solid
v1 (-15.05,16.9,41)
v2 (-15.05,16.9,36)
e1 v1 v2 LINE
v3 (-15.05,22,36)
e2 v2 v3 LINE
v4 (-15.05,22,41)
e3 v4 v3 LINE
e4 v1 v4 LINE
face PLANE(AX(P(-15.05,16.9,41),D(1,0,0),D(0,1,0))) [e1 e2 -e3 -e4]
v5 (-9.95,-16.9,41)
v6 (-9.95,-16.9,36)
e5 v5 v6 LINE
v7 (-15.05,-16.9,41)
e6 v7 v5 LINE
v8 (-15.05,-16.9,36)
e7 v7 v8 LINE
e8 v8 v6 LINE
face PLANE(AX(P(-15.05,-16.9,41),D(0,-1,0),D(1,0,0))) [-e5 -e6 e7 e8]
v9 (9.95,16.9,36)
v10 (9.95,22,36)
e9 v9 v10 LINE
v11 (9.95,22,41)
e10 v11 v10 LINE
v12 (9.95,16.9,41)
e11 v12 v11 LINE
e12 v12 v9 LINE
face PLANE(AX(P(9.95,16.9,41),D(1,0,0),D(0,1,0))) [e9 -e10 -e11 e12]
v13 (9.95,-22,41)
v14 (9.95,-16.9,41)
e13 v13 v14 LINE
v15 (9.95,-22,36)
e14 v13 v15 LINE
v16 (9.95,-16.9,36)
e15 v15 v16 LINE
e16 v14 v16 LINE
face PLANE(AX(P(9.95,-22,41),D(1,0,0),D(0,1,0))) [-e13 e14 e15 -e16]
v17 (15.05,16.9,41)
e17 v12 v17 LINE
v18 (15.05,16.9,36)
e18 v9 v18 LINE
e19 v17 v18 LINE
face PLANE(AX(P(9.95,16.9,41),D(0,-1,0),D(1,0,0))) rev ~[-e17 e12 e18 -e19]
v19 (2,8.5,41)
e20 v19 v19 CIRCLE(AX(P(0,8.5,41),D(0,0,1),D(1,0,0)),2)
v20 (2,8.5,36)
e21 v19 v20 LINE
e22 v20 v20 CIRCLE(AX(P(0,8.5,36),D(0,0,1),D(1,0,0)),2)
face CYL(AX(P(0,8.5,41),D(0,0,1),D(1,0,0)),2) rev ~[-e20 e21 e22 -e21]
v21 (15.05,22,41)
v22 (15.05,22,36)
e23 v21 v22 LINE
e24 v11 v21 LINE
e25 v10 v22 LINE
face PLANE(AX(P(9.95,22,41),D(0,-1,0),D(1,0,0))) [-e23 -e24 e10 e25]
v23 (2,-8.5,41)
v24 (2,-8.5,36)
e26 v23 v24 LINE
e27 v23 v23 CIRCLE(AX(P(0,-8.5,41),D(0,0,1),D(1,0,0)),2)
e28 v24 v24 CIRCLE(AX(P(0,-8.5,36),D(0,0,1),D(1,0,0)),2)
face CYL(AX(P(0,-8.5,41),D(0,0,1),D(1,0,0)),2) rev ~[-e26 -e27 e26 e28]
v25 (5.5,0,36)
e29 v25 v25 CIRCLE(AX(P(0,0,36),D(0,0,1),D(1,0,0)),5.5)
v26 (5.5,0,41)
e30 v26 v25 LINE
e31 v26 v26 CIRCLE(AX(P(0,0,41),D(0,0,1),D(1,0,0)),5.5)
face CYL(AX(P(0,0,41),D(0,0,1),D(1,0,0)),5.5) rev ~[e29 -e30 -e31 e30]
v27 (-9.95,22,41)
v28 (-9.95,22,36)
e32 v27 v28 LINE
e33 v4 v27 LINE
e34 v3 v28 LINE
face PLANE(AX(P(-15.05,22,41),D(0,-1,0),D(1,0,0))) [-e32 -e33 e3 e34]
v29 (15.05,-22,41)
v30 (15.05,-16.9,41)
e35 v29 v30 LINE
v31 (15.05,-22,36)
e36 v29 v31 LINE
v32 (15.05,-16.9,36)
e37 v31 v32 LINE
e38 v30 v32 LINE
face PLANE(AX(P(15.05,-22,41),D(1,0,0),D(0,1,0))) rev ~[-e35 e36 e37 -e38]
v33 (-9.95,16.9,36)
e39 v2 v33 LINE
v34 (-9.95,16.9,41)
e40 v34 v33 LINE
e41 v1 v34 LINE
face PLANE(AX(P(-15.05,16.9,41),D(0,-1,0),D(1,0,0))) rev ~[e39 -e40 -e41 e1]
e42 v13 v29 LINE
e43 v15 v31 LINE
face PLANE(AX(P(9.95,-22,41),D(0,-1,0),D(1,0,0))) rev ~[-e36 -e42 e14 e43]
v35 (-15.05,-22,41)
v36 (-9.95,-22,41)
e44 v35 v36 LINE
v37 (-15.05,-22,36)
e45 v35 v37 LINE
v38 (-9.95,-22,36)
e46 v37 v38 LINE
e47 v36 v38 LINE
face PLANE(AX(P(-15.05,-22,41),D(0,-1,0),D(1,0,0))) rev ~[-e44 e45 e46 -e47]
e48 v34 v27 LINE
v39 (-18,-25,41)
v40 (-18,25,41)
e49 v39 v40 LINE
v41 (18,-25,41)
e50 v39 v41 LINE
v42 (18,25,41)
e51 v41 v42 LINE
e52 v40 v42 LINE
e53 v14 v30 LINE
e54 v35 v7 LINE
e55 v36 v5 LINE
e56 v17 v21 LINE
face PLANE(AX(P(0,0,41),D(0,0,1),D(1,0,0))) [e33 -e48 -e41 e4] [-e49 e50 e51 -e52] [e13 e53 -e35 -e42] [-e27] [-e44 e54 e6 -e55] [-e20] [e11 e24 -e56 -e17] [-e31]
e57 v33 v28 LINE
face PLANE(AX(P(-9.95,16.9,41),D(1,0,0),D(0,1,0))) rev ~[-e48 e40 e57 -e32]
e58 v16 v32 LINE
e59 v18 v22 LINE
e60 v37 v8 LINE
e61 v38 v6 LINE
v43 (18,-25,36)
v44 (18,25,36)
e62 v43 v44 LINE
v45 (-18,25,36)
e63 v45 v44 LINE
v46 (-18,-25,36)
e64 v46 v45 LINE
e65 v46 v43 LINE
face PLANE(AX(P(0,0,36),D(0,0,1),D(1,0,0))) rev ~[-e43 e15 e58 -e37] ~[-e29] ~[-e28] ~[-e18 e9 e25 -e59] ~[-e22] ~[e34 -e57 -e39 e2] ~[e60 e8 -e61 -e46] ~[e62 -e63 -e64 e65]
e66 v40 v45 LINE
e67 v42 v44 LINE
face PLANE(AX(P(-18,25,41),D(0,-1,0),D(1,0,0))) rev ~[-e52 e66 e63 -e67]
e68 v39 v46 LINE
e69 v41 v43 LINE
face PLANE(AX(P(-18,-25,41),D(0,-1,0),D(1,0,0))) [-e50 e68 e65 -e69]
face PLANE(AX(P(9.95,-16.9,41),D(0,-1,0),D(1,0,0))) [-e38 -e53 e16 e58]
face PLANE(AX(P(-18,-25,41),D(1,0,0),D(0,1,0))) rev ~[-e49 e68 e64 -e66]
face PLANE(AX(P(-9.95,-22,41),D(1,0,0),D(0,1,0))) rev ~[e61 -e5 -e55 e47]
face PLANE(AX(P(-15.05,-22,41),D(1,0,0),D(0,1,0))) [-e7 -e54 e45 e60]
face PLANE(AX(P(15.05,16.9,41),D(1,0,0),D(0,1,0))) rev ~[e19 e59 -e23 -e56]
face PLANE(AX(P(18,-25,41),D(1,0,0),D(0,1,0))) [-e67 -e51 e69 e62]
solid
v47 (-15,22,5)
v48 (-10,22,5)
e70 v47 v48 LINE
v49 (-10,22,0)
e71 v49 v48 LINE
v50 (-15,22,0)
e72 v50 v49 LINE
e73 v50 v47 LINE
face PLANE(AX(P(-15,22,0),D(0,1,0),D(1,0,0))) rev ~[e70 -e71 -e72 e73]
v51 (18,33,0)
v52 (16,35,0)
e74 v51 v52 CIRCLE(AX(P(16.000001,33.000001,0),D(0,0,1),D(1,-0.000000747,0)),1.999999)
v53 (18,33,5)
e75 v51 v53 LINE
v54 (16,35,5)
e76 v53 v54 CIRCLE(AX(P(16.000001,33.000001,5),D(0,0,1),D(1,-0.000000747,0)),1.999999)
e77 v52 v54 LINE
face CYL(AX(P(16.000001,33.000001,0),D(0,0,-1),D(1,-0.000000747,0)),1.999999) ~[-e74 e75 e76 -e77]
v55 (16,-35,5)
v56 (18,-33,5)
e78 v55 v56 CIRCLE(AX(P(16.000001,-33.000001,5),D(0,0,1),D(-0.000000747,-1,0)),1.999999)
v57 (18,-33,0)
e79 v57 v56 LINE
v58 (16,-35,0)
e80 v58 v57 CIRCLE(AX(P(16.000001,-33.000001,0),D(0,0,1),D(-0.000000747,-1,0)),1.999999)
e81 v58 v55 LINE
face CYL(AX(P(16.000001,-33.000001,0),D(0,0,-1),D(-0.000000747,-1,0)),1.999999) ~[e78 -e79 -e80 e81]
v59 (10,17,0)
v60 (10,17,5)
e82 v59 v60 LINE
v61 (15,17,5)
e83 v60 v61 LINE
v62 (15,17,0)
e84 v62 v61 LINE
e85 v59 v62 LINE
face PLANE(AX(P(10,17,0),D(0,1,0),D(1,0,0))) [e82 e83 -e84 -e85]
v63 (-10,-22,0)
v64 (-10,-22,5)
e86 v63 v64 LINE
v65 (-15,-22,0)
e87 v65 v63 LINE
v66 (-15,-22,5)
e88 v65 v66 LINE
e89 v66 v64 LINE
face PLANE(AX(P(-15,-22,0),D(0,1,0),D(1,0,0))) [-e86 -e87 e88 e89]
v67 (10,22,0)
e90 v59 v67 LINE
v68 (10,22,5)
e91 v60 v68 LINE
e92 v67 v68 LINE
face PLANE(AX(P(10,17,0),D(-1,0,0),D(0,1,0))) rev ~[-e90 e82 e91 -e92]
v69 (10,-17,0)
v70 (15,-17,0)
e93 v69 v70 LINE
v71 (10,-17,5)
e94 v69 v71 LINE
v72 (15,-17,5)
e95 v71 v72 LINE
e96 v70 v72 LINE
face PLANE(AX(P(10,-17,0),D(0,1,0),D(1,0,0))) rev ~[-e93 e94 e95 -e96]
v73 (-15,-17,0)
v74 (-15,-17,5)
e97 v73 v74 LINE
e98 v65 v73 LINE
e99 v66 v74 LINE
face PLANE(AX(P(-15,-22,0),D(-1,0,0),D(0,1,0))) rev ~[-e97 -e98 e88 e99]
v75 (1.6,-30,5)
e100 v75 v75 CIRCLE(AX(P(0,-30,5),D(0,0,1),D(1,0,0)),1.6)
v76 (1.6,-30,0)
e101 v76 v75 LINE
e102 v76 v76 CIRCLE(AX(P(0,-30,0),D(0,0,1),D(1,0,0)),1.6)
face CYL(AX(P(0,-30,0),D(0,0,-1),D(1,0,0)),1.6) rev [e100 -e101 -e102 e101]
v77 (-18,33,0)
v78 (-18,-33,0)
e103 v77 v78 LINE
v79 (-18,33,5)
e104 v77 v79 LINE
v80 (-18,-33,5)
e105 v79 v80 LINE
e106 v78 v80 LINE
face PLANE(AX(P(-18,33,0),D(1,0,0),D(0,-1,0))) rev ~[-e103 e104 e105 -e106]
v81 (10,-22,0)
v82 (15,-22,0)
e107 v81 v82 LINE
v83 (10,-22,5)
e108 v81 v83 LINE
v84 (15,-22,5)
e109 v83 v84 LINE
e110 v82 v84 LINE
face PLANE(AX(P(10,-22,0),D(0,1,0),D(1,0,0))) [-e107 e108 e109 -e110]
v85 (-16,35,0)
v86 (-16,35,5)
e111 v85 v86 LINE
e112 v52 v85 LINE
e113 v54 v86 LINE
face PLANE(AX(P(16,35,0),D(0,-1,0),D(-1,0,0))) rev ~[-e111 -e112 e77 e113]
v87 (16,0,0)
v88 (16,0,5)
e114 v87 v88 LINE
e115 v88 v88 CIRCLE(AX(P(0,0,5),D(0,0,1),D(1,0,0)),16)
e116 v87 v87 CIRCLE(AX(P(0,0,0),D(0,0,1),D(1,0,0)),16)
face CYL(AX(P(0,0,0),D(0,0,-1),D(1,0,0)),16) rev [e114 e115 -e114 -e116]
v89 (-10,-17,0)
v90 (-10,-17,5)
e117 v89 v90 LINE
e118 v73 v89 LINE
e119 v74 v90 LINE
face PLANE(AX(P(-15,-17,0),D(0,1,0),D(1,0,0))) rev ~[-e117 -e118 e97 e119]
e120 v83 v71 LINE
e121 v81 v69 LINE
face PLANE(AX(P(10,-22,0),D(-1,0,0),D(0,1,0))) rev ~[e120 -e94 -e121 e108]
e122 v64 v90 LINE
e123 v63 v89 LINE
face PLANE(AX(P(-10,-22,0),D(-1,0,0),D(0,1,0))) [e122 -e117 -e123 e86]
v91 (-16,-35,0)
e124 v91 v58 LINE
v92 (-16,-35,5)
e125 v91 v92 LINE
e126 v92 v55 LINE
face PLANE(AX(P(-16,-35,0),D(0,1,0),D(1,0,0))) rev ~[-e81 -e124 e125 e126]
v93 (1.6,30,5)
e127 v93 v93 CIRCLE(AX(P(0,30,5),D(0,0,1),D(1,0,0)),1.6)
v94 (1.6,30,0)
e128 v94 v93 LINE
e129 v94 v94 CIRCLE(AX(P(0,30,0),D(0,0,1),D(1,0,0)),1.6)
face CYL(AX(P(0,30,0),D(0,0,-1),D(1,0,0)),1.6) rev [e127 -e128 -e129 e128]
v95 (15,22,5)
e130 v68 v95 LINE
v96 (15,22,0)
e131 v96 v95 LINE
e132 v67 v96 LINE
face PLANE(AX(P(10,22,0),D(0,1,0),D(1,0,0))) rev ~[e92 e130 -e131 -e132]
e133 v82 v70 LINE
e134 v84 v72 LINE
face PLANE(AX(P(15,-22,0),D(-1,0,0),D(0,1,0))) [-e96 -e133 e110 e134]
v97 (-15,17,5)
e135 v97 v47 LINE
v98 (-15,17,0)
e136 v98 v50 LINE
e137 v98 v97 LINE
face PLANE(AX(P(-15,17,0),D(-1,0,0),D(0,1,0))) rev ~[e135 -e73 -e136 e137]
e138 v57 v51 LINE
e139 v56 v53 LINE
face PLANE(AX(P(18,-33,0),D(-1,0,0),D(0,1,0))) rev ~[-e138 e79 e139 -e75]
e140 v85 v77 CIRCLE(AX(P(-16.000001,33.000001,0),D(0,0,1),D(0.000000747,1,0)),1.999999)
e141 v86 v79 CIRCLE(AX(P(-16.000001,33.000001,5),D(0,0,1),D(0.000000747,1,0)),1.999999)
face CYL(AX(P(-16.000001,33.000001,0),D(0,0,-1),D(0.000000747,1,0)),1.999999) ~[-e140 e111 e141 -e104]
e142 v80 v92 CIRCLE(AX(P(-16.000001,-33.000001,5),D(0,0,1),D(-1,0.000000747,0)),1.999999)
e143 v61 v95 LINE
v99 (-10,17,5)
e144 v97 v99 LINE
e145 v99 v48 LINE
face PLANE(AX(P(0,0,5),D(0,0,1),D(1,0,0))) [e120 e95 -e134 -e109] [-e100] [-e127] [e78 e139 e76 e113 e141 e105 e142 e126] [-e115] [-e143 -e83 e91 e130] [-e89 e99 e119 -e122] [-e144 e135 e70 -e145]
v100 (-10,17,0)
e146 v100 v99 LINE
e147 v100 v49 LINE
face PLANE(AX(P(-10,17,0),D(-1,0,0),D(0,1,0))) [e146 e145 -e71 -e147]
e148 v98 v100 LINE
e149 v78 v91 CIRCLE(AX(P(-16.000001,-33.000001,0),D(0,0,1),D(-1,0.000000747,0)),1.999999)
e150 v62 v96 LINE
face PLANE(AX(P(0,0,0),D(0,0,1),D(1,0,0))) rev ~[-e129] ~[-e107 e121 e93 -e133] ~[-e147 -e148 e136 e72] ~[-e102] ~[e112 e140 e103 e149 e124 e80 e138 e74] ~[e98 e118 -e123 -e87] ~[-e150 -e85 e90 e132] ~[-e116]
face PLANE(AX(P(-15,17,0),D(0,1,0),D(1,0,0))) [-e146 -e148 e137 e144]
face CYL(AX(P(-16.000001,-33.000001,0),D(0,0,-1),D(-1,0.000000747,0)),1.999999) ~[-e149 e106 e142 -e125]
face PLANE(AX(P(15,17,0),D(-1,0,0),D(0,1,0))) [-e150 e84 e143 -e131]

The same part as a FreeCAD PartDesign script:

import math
import FreeCAD as App
import Part
import Sketcher
Q = App.Units.Quantity

doc = App.newDocument("Part")
body = doc.addObject("PartDesign::Body", "Body")

# Sketch on XY plane
sketch1 = body.newObject("Sketcher::SketchObject", "Sketch")
sketch1.AttachmentSupport = (doc.getObject("XY_Plane"), [""])
sketch1.MapMode = "FlatFace"
sketch1.addGeometry([
    Part.ArcOfCircle(Part.Circle(App.Vector(16.000001, 33.000001, 0), App.Vector(0, 0, 1), 1.999999), math.radians(-0.000043), math.radians(90.000043)),  # 0
    Part.LineSegment(App.Vector(16, 35, 0), App.Vector(-16, 35, 0)),  # 1
    Part.ArcOfCircle(Part.Circle(App.Vector(-16.000001, 33.000001, 0), App.Vector(0, 0, 1), 1.999999), math.radians(89.999957), math.radians(180.000043)),  # 2
    Part.LineSegment(App.Vector(-18, 33, 0), App.Vector(-18, -33, 0)),  # 3
    Part.ArcOfCircle(Part.Circle(App.Vector(-16.000001, -33.000001, 0), App.Vector(0, 0, 1), 1.999999), math.radians(179.999957), math.radians(270.000043)),  # 4
    Part.LineSegment(App.Vector(-16, -35, 0), App.Vector(16, -35, 0)),  # 5
    Part.ArcOfCircle(Part.Circle(App.Vector(16.000001, -33.000001, 0), App.Vector(0, 0, 1), 1.999999), math.radians(-90.000043), math.radians(0.000043)),  # 6
    Part.LineSegment(App.Vector(18, -33, 0), App.Vector(18, 33, 0)),  # 7
    Part.LineSegment(App.Vector(-10, -22, 0), App.Vector(-15, -22, 0)),  # 8
    Part.LineSegment(App.Vector(-15, -22, 0), App.Vector(-15, -17, 0)),  # 9
    Part.LineSegment(App.Vector(-15, -17, 0), App.Vector(-10, -17, 0)),  # 10
    Part.LineSegment(App.Vector(-10, -17, 0), App.Vector(-10, -22, 0)),  # 11
    Part.Circle(App.Vector(0, -30, 0), App.Vector(0, 0, 1), 1.6),  # 12
    Part.LineSegment(App.Vector(15, -22, 0), App.Vector(10, -22, 0)),  # 13
    Part.LineSegment(App.Vector(10, -22, 0), App.Vector(10, -17, 0)),  # 14
    Part.LineSegment(App.Vector(10, -17, 0), App.Vector(15, -17, 0)),  # 15
    Part.LineSegment(App.Vector(15, -17, 0), App.Vector(15, -22, 0)),  # 16
    Part.Circle(App.Vector(0, 0, 0), App.Vector(0, 0, 1), 16),  # 17
    Part.LineSegment(App.Vector(-10, 17, 0), App.Vector(-15, 17, 0)),  # 18
    Part.LineSegment(App.Vector(-15, 17, 0), App.Vector(-15, 22, 0)),  # 19
    Part.LineSegment(App.Vector(-15, 22, 0), App.Vector(-10, 22, 0)),  # 20
    Part.LineSegment(App.Vector(-10, 22, 0), App.Vector(-10, 17, 0)),  # 21
    Part.Circle(App.Vector(0, 30, 0), App.Vector(0, 0, 1), 1.6),  # 22
    Part.LineSegment(App.Vector(15, 17, 0), App.Vector(10, 17, 0)),  # 23
    Part.LineSegment(App.Vector(10, 17, 0), App.Vector(10, 22, 0)),  # 24
    Part.LineSegment(App.Vector(10, 22, 0), App.Vector(15, 22, 0)),  # 25
    Part.LineSegment(App.Vector(15, 22, 0), App.Vector(15, 17, 0)),  # 26
], False)
sketch1.addConstraint([
    Sketcher.Constraint("Tangent", 0, 2, 1, 1),
    Sketcher.Constraint("Tangent", 1, 2, 2, 1),
    Sketcher.Constraint("Tangent", 2, 2, 3, 1),
    Sketcher.Constraint("Tangent", 3, 2, 4, 1),
    Sketcher.Constraint("Tangent", 4, 2, 5, 1),
    Sketcher.Constraint("Tangent", 5, 2, 6, 1),
    Sketcher.Constraint("Tangent", 6, 2, 7, 1),
    Sketcher.Constraint("Tangent", 7, 2, 0, 1),
    Sketcher.Constraint("Coincident", 8, 2, 9, 1),
    Sketcher.Constraint("Coincident", 9, 2, 10, 1),
    Sketcher.Constraint("Coincident", 10, 2, 11, 1),
    Sketcher.Constraint("Coincident", 11, 2, 8, 1),
    Sketcher.Constraint("Coincident", 13, 2, 14, 1),
    Sketcher.Constraint("Coincident", 14, 2, 15, 1),
    Sketcher.Constraint("Coincident", 15, 2, 16, 1),
    Sketcher.Constraint("Coincident", 16, 2, 13, 1),
    Sketcher.Constraint("Coincident", 18, 2, 19, 1),
    Sketcher.Constraint("Coincident", 19, 2, 20, 1),
    Sketcher.Constraint("Coincident", 20, 2, 21, 1),
    Sketcher.Constraint("Coincident", 21, 2, 18, 1),
    Sketcher.Constraint("Coincident", 23, 2, 24, 1),
    Sketcher.Constraint("Coincident", 24, 2, 25, 1),
    Sketcher.Constraint("Coincident", 25, 2, 26, 1),
    Sketcher.Constraint("Coincident", 26, 2, 23, 1),
    Sketcher.Constraint("Horizontal", 1),
    Sketcher.Constraint("Vertical", 3),
    Sketcher.Constraint("Horizontal", 5),
    Sketcher.Constraint("Vertical", 7),
    Sketcher.Constraint("Horizontal", 8),
    Sketcher.Constraint("Vertical", 9),
    Sketcher.Constraint("Horizontal", 10),
    Sketcher.Constraint("Vertical", 11),
    Sketcher.Constraint("Horizontal", 13),
    Sketcher.Constraint("Vertical", 14),
    Sketcher.Constraint("Horizontal", 15),
    Sketcher.Constraint("Vertical", 16),
    Sketcher.Constraint("Horizontal", 18),
    Sketcher.Constraint("Vertical", 19),
    Sketcher.Constraint("Horizontal", 20),
    Sketcher.Constraint("Vertical", 21),
    Sketcher.Constraint("Horizontal", 23),
    Sketcher.Constraint("Vertical", 24),
    Sketcher.Constraint("Horizontal", 25),
    Sketcher.Constraint("Vertical", 26),
    Sketcher.Constraint("Coincident", 17, 3, -1, 1),
    Sketcher.Constraint("Equal", 0, 2),
    Sketcher.Constraint("Equal", 2, 4),
    Sketcher.Constraint("Equal", 4, 6),
    Sketcher.Constraint("Equal", 12, 22),
    Sketcher.Constraint("Symmetric", 0, 3, 4, 3, -1, 1),
    Sketcher.Constraint("Symmetric", 12, 3, 22, 3, -1, 1),
    Sketcher.Constraint("Symmetric", 15, 2, 18, 2, -1, 1),
    Sketcher.Constraint("Symmetric", 13, 2, 20, 2, -1, 1),
    Sketcher.Constraint("Symmetric", 10, 2, 23, 2, -1, 1),
    Sketcher.Constraint("Symmetric", 8, 2, 25, 2, -1, 1),
    Sketcher.Constraint("Symmetric", 11, 2, 13, 2, -2),
    Sketcher.Constraint("Symmetric", 9, 2, 15, 2, -2),
    Sketcher.Constraint("PointOnObject", 12, 3, -2),
    Sketcher.Constraint("Equal", 25, 9),
    Sketcher.Constraint("Diameter", 17, Q("32 mm")),
    Sketcher.Constraint("Radius", 0, Q("1.999999 mm")),
    Sketcher.Constraint("Diameter", 12, Q("3.2 mm")),
    Sketcher.Constraint("DistanceX", 1, 2, 1, 1, Q("32 mm")),
    Sketcher.Constraint("DistanceX", 8, 2, 8, 1, Q("5 mm")),
    Sketcher.Constraint("DistanceY", 3, 2, 3, 1, Q("66 mm")),
    Sketcher.Constraint("DistanceY", 12, 3, -1, 1, Q("30 mm")),
    Sketcher.Constraint("DistanceX", 8, 2, -1, 1, Q("15 mm")),
    Sketcher.Constraint("DistanceY", 8, 2, -1, 1, Q("22 mm")),
])
pad1 = body.newObject("PartDesign::Pad", "Pad")
pad1.Profile = sketch1
pad1.Length = 5
body2 = doc.addObject("PartDesign::Body", "Body001")

# Sketch on XY plane
sketch2 = body2.newObject("Sketcher::SketchObject", "Sketch001")
sketch2.AttachmentSupport = (doc.getObject("XY_Plane001"), [""])
sketch2.MapMode = "FlatFace"
sketch2.AttachmentOffset = App.Placement(App.Vector(0, 0, 41), App.Rotation())
sketch2.addGeometry([
    Part.LineSegment(App.Vector(-18, 25, 0), App.Vector(-18, -25, 0)),  # 0
    Part.LineSegment(App.Vector(-18, -25, 0), App.Vector(18, -25, 0)),  # 1
    Part.LineSegment(App.Vector(18, -25, 0), App.Vector(18, 25, 0)),  # 2
    Part.LineSegment(App.Vector(18, 25, 0), App.Vector(-18, 25, 0)),  # 3
    Part.LineSegment(App.Vector(-9.95, -22, 0), App.Vector(-15.05, -22, 0)),  # 4
    Part.LineSegment(App.Vector(-15.05, -22, 0), App.Vector(-15.05, -16.9, 0)),  # 5
    Part.LineSegment(App.Vector(-15.05, -16.9, 0), App.Vector(-9.95, -16.9, 0)),  # 6
    Part.LineSegment(App.Vector(-9.95, -16.9, 0), App.Vector(-9.95, -22, 0)),  # 7
    Part.Circle(App.Vector(0, -8.5, 0), App.Vector(0, 0, 1), 2),  # 8
    Part.LineSegment(App.Vector(15.05, -22, 0), App.Vector(9.95, -22, 0)),  # 9
    Part.LineSegment(App.Vector(9.95, -22, 0), App.Vector(9.95, -16.9, 0)),  # 10
    Part.LineSegment(App.Vector(9.95, -16.9, 0), App.Vector(15.05, -16.9, 0)),  # 11
    Part.LineSegment(App.Vector(15.05, -16.9, 0), App.Vector(15.05, -22, 0)),  # 12
    Part.Circle(App.Vector(0, 0, 0), App.Vector(0, 0, 1), 5.5),  # 13
    Part.Circle(App.Vector(0, 8.5, 0), App.Vector(0, 0, 1), 2),  # 14
    Part.LineSegment(App.Vector(-9.95, 16.9, 0), App.Vector(-15.05, 16.9, 0)),  # 15
    Part.LineSegment(App.Vector(-15.05, 16.9, 0), App.Vector(-15.05, 22, 0)),  # 16
    Part.LineSegment(App.Vector(-15.05, 22, 0), App.Vector(-9.95, 22, 0)),  # 17
    Part.LineSegment(App.Vector(-9.95, 22, 0), App.Vector(-9.95, 16.9, 0)),  # 18
    Part.LineSegment(App.Vector(15.05, 16.9, 0), App.Vector(9.95, 16.9, 0)),  # 19
    Part.LineSegment(App.Vector(9.95, 16.9, 0), App.Vector(9.95, 22, 0)),  # 20
    Part.LineSegment(App.Vector(9.95, 22, 0), App.Vector(15.05, 22, 0)),  # 21
    Part.LineSegment(App.Vector(15.05, 22, 0), App.Vector(15.05, 16.9, 0)),  # 22
], False)
sketch2.addConstraint([
    Sketcher.Constraint("Coincident", 0, 2, 1, 1),
    Sketcher.Constraint("Coincident", 1, 2, 2, 1),
    Sketcher.Constraint("Coincident", 2, 2, 3, 1),
    Sketcher.Constraint("Coincident", 3, 2, 0, 1),
    Sketcher.Constraint("Coincident", 4, 2, 5, 1),
    Sketcher.Constraint("Coincident", 5, 2, 6, 1),
    Sketcher.Constraint("Coincident", 6, 2, 7, 1),
    Sketcher.Constraint("Coincident", 7, 2, 4, 1),
    Sketcher.Constraint("Coincident", 9, 2, 10, 1),
    Sketcher.Constraint("Coincident", 10, 2, 11, 1),
    Sketcher.Constraint("Coincident", 11, 2, 12, 1),
    Sketcher.Constraint("Coincident", 12, 2, 9, 1),
    Sketcher.Constraint("Coincident", 15, 2, 16, 1),
    Sketcher.Constraint("Coincident", 16, 2, 17, 1),
    Sketcher.Constraint("Coincident", 17, 2, 18, 1),
    Sketcher.Constraint("Coincident", 18, 2, 15, 1),
    Sketcher.Constraint("Coincident", 19, 2, 20, 1),
    Sketcher.Constraint("Coincident", 20, 2, 21, 1),
    Sketcher.Constraint("Coincident", 21, 2, 22, 1),
    Sketcher.Constraint("Coincident", 22, 2, 19, 1),
    Sketcher.Constraint("Vertical", 0),
    Sketcher.Constraint("Horizontal", 1),
    Sketcher.Constraint("Vertical", 2),
    Sketcher.Constraint("Horizontal", 3),
    Sketcher.Constraint("Horizontal", 4),
    Sketcher.Constraint("Vertical", 5),
    Sketcher.Constraint("Horizontal", 6),
    Sketcher.Constraint("Vertical", 7),
    Sketcher.Constraint("Horizontal", 9),
    Sketcher.Constraint("Vertical", 10),
    Sketcher.Constraint("Horizontal", 11),
    Sketcher.Constraint("Vertical", 12),
    Sketcher.Constraint("Horizontal", 15),
    Sketcher.Constraint("Vertical", 16),
    Sketcher.Constraint("Horizontal", 17),
    Sketcher.Constraint("Vertical", 18),
    Sketcher.Constraint("Horizontal", 19),
    Sketcher.Constraint("Vertical", 20),
    Sketcher.Constraint("Horizontal", 21),
    Sketcher.Constraint("Vertical", 22),
    Sketcher.Constraint("Coincident", 13, 3, -1, 1),
    Sketcher.Constraint("Equal", 8, 14),
    Sketcher.Constraint("Symmetric", 8, 3, 14, 3, -1, 1),
    Sketcher.Constraint("Symmetric", 0, 2, 2, 2, -1, 1),
    Sketcher.Constraint("Symmetric", 11, 2, 15, 2, -1, 1),
    Sketcher.Constraint("Symmetric", 9, 2, 17, 2, -1, 1),
    Sketcher.Constraint("Symmetric", 6, 2, 19, 2, -1, 1),
    Sketcher.Constraint("Symmetric", 4, 2, 21, 2, -1, 1),
    Sketcher.Constraint("Symmetric", 7, 2, 9, 2, -2),
    Sketcher.Constraint("Symmetric", 5, 2, 11, 2, -2),
    Sketcher.Constraint("PointOnObject", 8, 3, -2),
    Sketcher.Constraint("Equal", 21, 5),
    Sketcher.Constraint("Diameter", 8, Q("4 mm")),
    Sketcher.Constraint("Diameter", 13, Q("11 mm")),
    Sketcher.Constraint("DistanceX", 1, 1, 1, 2, Q("36 mm")),
    Sketcher.Constraint("DistanceY", 0, 2, 0, 1, Q("50 mm")),
    Sketcher.Constraint("DistanceX", 4, 2, 4, 1, Q("5.1 mm")),
    Sketcher.Constraint("DistanceY", 4, 2, -1, 1, Q("22 mm")),
    Sketcher.Constraint("DistanceY", 8, 3, 14, 3, Q("17 mm")),
    Sketcher.Constraint("DistanceX", 17, 2, 21, 2, Q("25 mm")),
])
pad2 = body2.newObject("PartDesign::Pad", "Pad001")
pad2.Profile = sketch2
pad2.Length = 5
pad2.Reversed = True

doc.recompute()
